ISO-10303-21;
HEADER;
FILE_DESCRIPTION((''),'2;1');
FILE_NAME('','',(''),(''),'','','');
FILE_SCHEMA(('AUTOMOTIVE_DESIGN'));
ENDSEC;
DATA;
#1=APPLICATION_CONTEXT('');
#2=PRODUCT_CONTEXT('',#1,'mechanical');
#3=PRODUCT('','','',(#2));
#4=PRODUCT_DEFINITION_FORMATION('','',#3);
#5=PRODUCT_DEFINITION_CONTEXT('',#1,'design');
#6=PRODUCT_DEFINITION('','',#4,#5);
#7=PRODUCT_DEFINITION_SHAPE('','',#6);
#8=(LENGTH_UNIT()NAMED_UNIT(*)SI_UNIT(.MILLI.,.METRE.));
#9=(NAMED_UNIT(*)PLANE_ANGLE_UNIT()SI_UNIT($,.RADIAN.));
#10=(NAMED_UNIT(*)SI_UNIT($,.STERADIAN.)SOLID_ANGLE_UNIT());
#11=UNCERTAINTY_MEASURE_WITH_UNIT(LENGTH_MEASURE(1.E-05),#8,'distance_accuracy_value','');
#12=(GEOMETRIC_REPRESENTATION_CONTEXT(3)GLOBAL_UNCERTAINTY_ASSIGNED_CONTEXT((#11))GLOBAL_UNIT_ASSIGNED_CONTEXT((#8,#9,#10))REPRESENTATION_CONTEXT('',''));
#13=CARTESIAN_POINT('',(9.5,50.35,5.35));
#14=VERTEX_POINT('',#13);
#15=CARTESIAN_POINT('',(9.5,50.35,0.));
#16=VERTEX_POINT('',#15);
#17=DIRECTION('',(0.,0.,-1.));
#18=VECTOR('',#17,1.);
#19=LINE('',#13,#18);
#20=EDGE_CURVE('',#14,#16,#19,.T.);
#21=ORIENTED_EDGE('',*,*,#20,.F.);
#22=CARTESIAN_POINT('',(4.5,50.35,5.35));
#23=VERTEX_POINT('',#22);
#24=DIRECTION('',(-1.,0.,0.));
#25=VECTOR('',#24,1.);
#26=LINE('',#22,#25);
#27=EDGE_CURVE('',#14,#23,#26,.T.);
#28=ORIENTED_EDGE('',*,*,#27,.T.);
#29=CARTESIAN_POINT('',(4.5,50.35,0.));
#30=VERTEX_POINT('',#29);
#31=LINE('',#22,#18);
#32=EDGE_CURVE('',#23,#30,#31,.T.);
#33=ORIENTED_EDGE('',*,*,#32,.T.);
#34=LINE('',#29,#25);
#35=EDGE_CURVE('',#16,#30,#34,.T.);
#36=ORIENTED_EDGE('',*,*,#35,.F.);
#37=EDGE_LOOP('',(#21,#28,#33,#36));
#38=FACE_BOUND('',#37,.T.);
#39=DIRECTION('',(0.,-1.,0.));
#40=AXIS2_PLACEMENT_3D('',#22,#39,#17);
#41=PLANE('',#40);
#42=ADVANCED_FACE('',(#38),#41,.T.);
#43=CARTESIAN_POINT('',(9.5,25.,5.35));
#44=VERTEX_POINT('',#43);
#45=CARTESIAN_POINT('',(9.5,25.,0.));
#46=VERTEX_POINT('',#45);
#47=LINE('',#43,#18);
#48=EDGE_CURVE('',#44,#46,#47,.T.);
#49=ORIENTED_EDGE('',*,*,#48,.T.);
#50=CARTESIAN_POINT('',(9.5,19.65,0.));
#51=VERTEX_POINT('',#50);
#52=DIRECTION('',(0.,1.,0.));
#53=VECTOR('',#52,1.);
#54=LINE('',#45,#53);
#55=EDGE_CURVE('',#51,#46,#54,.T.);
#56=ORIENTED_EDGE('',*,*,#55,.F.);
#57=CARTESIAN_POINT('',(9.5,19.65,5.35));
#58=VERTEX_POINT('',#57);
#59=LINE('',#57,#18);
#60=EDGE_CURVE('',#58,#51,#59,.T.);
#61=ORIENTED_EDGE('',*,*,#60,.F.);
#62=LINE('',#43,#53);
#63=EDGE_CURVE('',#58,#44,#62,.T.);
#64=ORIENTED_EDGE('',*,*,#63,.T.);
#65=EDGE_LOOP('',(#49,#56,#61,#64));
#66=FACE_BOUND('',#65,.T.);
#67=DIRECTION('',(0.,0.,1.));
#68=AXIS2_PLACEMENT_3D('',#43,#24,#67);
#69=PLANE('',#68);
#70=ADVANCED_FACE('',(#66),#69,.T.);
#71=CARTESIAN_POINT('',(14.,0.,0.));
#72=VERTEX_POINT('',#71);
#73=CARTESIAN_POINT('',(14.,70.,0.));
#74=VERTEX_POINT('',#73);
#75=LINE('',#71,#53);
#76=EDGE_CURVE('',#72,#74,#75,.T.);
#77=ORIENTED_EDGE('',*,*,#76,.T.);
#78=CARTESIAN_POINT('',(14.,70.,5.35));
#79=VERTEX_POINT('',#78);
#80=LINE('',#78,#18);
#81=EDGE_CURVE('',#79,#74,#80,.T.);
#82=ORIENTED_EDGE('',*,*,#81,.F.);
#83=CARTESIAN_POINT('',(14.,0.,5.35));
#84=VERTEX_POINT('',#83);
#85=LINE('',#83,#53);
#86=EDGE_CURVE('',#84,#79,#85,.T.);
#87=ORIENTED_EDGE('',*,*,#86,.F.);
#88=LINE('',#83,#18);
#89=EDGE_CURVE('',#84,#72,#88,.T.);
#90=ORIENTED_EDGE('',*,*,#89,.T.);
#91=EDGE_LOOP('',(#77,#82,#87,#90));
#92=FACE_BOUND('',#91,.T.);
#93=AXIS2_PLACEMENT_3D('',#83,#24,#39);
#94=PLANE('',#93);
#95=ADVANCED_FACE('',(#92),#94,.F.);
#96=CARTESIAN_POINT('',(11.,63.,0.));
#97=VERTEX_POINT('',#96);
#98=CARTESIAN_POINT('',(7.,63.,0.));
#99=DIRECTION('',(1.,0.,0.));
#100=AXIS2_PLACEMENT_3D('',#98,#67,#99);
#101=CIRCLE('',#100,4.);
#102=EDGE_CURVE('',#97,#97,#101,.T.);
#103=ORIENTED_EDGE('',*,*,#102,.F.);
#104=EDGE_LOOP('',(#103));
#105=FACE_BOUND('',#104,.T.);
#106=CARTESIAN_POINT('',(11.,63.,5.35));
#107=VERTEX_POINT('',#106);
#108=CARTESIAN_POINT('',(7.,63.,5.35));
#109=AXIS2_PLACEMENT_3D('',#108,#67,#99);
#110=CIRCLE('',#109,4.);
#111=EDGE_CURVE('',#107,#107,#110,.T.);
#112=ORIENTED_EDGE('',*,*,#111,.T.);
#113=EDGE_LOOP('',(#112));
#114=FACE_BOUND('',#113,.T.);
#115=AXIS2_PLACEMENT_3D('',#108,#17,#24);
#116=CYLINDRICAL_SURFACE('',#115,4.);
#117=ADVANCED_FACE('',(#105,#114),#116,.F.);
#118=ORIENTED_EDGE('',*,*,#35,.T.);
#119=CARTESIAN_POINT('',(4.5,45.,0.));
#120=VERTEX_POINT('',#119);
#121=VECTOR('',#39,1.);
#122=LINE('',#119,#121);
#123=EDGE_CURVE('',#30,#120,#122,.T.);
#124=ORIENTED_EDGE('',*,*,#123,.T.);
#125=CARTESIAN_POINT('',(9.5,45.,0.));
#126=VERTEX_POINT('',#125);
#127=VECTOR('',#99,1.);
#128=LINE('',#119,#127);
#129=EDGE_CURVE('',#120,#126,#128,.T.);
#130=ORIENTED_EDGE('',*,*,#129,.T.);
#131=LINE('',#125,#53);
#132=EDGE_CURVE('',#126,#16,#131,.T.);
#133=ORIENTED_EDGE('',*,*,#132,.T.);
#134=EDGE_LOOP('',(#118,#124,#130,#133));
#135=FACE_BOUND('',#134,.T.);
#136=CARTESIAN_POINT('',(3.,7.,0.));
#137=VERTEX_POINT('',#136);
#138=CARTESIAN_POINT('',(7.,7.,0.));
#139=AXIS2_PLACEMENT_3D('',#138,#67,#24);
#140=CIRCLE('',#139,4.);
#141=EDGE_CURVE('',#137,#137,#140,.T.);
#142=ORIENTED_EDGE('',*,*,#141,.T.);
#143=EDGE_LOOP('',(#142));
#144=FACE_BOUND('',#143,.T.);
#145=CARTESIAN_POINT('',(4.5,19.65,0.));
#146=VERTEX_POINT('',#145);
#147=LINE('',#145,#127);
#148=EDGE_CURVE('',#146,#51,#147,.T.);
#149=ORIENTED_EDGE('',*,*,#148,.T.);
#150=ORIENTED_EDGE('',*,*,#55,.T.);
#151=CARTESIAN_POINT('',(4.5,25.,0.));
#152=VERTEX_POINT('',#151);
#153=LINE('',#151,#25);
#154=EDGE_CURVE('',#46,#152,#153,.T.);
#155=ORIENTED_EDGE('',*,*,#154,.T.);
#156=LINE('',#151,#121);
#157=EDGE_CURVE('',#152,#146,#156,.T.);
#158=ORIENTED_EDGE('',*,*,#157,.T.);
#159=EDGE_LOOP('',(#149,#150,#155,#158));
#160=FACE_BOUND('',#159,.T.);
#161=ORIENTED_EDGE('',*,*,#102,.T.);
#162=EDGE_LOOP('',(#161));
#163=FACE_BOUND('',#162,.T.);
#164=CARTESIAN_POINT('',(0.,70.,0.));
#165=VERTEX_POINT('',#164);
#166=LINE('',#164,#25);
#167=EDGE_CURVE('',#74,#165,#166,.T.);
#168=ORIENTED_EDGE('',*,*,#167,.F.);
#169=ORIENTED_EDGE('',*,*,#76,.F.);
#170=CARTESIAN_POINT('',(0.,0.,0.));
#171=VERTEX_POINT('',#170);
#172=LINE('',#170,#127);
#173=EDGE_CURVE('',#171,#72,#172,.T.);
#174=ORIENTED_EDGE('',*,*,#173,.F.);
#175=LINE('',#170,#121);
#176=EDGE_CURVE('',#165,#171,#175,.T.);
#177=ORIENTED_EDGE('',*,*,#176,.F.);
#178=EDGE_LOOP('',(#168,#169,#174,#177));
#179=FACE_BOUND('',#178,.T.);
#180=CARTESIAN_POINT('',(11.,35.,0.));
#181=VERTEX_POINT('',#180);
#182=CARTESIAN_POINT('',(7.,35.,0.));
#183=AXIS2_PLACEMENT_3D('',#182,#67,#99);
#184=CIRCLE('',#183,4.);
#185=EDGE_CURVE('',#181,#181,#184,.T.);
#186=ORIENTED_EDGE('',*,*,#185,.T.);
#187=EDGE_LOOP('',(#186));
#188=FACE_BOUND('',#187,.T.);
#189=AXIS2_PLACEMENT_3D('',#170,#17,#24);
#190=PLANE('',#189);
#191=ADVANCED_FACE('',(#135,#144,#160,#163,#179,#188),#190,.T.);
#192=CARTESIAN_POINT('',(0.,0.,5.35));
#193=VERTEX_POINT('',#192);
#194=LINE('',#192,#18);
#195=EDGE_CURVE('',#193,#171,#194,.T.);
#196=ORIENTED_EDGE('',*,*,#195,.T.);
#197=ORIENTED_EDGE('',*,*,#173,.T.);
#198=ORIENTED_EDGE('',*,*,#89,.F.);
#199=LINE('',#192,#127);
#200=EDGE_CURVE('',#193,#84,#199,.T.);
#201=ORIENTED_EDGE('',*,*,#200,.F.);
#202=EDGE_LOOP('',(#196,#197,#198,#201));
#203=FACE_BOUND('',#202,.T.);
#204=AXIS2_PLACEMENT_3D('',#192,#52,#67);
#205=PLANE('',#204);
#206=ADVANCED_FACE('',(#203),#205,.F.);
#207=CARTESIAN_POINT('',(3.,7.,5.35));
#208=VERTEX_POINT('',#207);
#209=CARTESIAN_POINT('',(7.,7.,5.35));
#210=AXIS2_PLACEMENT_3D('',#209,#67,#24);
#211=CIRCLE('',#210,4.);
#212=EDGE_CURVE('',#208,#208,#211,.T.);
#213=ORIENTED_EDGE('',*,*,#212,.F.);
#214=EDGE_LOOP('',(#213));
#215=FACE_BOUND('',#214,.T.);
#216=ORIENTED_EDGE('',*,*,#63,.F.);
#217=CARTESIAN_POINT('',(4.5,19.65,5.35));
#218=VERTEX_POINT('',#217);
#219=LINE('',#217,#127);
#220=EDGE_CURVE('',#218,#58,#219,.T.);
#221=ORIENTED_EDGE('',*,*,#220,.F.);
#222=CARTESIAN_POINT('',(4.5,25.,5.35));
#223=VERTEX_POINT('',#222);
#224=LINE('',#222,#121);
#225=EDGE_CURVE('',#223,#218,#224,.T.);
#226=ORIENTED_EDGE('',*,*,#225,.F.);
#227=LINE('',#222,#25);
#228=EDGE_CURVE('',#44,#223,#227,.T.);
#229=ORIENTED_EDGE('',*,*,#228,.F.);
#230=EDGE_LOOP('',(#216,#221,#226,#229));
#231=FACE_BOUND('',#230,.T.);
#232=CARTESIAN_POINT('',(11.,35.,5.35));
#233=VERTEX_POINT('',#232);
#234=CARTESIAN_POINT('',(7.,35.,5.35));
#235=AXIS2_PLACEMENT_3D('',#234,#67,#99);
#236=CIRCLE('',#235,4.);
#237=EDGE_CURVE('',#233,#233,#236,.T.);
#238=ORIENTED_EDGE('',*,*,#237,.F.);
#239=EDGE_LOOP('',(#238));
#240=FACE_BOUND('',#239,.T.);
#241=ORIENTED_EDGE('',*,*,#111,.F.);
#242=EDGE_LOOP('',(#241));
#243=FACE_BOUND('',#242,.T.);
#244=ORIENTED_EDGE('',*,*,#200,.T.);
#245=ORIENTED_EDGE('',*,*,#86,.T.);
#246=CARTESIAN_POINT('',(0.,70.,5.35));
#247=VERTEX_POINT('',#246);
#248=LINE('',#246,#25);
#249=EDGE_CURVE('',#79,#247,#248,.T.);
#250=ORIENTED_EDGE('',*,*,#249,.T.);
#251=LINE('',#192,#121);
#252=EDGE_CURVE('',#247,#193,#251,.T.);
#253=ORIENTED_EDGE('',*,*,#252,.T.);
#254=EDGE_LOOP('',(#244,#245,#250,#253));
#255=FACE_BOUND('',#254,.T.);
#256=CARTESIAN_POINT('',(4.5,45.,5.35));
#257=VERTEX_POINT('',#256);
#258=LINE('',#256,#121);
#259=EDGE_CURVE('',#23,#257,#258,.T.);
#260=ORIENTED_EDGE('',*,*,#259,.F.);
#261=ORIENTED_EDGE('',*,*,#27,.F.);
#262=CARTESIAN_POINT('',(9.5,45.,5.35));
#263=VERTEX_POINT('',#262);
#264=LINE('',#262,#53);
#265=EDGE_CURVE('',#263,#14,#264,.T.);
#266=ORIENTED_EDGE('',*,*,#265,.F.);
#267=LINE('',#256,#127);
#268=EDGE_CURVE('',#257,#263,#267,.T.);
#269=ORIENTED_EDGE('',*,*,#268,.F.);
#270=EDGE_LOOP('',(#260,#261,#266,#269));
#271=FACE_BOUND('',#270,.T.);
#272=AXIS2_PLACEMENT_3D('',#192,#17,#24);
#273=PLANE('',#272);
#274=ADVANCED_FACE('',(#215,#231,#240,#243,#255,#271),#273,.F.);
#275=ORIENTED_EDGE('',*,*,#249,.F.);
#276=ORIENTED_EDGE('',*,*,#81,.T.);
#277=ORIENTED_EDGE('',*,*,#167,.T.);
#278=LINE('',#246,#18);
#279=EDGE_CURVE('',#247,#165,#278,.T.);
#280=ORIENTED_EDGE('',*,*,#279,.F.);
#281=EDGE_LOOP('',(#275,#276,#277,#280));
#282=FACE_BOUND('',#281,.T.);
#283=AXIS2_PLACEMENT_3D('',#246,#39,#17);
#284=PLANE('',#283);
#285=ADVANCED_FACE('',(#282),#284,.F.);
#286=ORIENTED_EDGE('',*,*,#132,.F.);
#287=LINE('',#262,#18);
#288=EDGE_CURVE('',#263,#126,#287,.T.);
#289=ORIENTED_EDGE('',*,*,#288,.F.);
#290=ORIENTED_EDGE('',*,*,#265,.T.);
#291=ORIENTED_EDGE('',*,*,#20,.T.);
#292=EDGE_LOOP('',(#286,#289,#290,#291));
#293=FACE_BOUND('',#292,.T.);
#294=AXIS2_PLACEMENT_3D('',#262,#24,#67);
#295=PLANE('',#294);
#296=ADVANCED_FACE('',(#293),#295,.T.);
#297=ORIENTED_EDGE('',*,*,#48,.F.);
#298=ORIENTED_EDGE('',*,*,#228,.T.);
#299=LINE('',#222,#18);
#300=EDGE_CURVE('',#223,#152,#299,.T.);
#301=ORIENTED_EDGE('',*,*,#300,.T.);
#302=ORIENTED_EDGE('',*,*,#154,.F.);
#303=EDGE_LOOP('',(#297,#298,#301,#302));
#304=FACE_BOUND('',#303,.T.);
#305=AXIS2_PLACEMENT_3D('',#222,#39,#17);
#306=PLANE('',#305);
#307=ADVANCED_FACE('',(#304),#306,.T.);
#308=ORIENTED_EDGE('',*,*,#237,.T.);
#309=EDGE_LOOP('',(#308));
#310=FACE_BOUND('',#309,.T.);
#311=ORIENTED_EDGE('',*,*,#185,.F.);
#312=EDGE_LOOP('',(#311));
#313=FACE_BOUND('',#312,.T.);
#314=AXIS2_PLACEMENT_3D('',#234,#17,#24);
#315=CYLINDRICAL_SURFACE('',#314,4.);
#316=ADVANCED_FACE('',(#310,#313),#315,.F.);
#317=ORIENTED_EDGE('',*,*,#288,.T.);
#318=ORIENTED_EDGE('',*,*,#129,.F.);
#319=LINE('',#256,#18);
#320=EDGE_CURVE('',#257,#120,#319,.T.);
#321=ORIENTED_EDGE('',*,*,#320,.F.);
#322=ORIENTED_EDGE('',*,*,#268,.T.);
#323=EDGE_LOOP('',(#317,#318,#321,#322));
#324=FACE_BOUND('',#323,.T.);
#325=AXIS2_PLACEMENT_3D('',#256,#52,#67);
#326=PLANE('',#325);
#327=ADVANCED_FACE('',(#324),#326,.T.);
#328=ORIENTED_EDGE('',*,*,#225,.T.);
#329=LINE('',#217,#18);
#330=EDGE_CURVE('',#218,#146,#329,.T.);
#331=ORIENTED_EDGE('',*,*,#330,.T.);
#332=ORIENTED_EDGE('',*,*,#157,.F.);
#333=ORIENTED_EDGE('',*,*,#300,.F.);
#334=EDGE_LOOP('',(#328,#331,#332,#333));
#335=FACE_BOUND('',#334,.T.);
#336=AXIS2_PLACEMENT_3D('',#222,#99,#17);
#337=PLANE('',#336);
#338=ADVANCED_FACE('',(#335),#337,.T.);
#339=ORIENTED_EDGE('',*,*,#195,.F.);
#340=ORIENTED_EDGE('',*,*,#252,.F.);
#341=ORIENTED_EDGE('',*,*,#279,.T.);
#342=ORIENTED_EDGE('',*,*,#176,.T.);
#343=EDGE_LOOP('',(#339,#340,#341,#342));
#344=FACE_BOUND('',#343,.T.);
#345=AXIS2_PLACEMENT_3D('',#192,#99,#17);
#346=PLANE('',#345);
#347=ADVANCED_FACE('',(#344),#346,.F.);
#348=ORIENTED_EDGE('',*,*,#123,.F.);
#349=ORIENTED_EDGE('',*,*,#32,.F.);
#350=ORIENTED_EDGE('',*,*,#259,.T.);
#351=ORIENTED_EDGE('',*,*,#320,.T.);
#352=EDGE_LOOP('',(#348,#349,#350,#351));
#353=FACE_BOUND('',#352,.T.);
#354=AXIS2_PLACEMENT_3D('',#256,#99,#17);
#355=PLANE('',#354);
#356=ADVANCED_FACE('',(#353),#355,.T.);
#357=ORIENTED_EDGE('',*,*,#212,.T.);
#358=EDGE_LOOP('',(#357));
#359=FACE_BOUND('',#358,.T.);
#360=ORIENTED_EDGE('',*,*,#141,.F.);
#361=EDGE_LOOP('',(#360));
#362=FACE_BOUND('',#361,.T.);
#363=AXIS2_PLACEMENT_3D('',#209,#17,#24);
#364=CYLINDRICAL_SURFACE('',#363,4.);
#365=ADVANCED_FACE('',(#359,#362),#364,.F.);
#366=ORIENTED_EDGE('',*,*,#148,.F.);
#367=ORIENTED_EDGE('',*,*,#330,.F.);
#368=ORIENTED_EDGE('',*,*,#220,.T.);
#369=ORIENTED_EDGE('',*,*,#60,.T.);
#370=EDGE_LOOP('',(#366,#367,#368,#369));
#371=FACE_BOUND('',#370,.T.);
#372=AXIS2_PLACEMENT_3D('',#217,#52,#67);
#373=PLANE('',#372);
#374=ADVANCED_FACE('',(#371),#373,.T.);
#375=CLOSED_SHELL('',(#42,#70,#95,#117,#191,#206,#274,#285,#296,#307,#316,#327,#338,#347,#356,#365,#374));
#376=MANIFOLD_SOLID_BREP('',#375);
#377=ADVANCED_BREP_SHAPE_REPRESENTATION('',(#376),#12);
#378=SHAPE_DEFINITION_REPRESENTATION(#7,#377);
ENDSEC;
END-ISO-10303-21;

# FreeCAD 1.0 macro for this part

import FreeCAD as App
import Part
import Sketcher

V = App.Vector


def add_polygon(sketch, points):
    """Adds a closed chain of lines whose ends are joined by coincident constraints."""
    first, n = sketch.GeometryCount, len(points)
    for a, b in zip(points, points[1:] + points[:1]):
        sketch.addGeometry(Part.LineSegment(App.Vector(*a, 0), App.Vector(*b, 0)), False)
    for i in range(n):
        sketch.addConstraint(Sketcher.Constraint("Coincident", first + i, 2, first + (i + 1) % n, 1))

doc = App.newDocument("Part")
params = doc.addObject("Spreadsheet::Sheet", "Params")
for row, (alias, value) in enumerate([
    ("sketch1_diameter", "8 mm"),
    ("sketch1_width", "14 mm"),
    ("sketch1_width2", "5 mm"),
    ("sketch1_height", "70 mm"),
    ("sketch1_height2", "5.35 mm"),
    ("pad1_length", "5.35 mm"),
], start=1):
    params.set(f"A{row}", alias)
    params.set(f"B{row}", "=" + value)
    params.setAlias(f"B{row}", alias)

body = doc.addObject("PartDesign::Body", "Body")

# Sketch on XY plane
sketch1 = body.newObject("Sketcher::SketchObject", "Sketch")
sketch1.AttachmentSupport = (doc.getObject("XY_Plane"), [""])
sketch1.MapMode = "FlatFace"
add_polygon(sketch1, [(0, 70), (0, 0), (14, 0), (14, 70)])  # lines 0-3
sketch1.addGeometry(Part.Circle(V(7, 7, 0), V(0, 0, 1), 4), False)  # 4
add_polygon(sketch1, [(9.5, 19.65), (4.5, 19.65), (4.5, 25), (9.5, 25)])  # lines 5-8
sketch1.addGeometry(Part.Circle(V(7, 35, 0), V(0, 0, 1), 4), False)  # 9
add_polygon(sketch1, [(9.5, 45), (4.5, 45), (4.5, 50.35), (9.5, 50.35)])  # lines 10-13
sketch1.addGeometry(Part.Circle(V(7, 63, 0), V(0, 0, 1), 4), False)  # 14
sketch1.addConstraint([
    Sketcher.Constraint("Vertical", 0),
    Sketcher.Constraint("Horizontal", 1),
    Sketcher.Constraint("Vertical", 2),
    Sketcher.Constraint("Horizontal", 3),
    Sketcher.Constraint("Horizontal", 5),
    Sketcher.Constraint("Vertical", 6),
    Sketcher.Constraint("Horizontal", 7),
    Sketcher.Constraint("Vertical", 8),
    Sketcher.Constraint("Horizontal", 10),
    Sketcher.Constraint("Vertical", 11),
    Sketcher.Constraint("Horizontal", 12),
    Sketcher.Constraint("Vertical", 13),
    Sketcher.Constraint("Coincident", 0, 2, -1, 1),
    Sketcher.Constraint("Equal", 4, 9),
    Sketcher.Constraint("Equal", 9, 14),
    Sketcher.Constraint("Vertical", 4, 3, 9, 3),
    Sketcher.Constraint("Vertical", 9, 3, 14, 3),
    Sketcher.Constraint("Vertical", 6, 2, 10, 2),
    Sketcher.Constraint("Vertical", 8, 2, 12, 2),
    Sketcher.Constraint("Equal", 8, 11),
    Sketcher.Constraint("Diameter", 4, 8.0),
    Sketcher.Constraint("DistanceX", 1, 1, 1, 2, 14.0),
    Sketcher.Constraint("DistanceX", 5, 2, 5, 1, 5.0),
    Sketcher.Constraint("DistanceY", 0, 2, 0, 1, 70.0),
    Sketcher.Constraint("DistanceX", -1, 1, 4, 3, 7.0),
    Sketcher.Constraint("DistanceY", -1, 1, 4, 3, 7.0),
    Sketcher.Constraint("DistanceY", -1, 1, 9, 3, 35.0),
    Sketcher.Constraint("DistanceY", -1, 1, 14, 3, 63.0),
    Sketcher.Constraint("DistanceY", -1, 1, 6, 2, 25.0),
    Sketcher.Constraint("DistanceY", -1, 1, 10, 2, 45.0),
    Sketcher.Constraint("DistanceY", 6, 1, 6, 2, 5.35),
    Sketcher.Constraint("DistanceX", -1, 1, 5, 2, 4.5),
])
sketch1.setExpression("Constraints[32]", "Params.sketch1_diameter")
sketch1.setExpression("Constraints[33]", "Params.sketch1_width")
sketch1.setExpression("Constraints[34]", "Params.sketch1_width2")
sketch1.setExpression("Constraints[35]", "Params.sketch1_height")
sketch1.setExpression("Constraints[42]", "Params.sketch1_height2")
pad1 = body.newObject("PartDesign::Pad", "Pad")
pad1.Profile = sketch1
pad1.setExpression("Length", "Params.pad1_length")

doc.recompute()
